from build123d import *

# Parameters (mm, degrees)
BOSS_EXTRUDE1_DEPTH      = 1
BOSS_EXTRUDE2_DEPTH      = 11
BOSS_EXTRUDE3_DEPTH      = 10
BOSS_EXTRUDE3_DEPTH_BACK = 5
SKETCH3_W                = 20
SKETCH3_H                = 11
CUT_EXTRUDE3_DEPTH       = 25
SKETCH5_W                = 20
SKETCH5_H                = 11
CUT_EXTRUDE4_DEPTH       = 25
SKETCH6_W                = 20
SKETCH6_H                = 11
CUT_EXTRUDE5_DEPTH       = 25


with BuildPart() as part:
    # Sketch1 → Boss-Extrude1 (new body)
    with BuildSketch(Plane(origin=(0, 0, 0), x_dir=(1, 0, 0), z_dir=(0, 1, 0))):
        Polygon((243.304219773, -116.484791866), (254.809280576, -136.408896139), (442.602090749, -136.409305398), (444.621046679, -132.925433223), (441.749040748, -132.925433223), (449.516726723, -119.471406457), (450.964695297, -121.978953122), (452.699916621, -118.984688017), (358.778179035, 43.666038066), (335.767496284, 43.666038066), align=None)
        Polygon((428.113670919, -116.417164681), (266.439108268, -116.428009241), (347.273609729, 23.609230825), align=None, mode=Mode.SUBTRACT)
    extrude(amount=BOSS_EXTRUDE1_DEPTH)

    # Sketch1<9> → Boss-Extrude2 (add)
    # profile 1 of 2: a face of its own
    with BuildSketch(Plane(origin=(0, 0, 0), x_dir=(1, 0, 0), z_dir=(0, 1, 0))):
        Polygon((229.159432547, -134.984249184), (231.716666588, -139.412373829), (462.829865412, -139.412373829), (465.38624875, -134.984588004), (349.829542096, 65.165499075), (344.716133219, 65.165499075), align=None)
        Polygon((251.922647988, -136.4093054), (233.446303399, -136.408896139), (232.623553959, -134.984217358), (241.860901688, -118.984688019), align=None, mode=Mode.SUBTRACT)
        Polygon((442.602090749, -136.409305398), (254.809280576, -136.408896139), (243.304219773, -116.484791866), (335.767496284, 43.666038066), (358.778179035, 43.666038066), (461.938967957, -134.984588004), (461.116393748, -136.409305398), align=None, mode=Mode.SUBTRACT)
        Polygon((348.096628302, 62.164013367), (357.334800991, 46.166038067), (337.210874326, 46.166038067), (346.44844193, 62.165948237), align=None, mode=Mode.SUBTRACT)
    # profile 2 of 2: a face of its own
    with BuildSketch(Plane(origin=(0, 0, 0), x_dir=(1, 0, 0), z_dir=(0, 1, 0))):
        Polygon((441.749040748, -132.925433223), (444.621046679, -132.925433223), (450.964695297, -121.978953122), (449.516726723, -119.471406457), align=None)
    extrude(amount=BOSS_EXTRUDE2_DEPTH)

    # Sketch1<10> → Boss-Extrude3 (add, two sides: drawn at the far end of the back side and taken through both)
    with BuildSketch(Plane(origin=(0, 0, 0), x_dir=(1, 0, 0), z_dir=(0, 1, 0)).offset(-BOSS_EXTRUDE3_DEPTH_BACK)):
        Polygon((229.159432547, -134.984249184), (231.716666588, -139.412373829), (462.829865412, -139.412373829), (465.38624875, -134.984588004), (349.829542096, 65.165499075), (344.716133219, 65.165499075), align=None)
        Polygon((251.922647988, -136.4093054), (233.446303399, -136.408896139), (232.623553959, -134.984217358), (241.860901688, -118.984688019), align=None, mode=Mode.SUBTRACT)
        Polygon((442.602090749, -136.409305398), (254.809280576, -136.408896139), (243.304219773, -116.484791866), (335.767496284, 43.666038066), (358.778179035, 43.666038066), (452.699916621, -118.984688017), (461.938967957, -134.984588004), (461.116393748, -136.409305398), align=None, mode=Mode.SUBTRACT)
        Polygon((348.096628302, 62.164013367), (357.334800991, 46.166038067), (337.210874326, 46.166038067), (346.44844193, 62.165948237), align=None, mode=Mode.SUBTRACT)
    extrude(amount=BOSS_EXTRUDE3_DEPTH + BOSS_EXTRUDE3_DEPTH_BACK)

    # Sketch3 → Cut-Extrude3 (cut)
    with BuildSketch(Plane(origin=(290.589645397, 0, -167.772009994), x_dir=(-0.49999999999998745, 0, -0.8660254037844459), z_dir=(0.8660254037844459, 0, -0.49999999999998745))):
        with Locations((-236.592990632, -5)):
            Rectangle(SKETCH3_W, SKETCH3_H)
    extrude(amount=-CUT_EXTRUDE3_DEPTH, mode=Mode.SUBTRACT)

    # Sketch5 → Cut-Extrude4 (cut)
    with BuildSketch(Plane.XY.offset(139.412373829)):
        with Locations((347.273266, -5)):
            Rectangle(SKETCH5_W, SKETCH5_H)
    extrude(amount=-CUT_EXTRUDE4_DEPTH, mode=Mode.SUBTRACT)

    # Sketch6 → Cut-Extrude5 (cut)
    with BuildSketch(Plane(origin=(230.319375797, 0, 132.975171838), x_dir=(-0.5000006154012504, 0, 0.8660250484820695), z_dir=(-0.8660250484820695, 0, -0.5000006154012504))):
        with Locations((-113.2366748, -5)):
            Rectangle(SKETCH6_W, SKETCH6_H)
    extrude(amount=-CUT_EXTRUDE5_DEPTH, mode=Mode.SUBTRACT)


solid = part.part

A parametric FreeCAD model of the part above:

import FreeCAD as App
import Part
import Sketcher
from FreeCAD import Vector
Q = App.Units.Quantity


def add_polygon(sketch, points):
    """Adds a closed chain of lines whose ends are joined by coincident constraints."""
    first, n = sketch.GeometryCount, len(points)
    for a, b in zip(points, points[1:] + points[:1]):
        sketch.addGeometry(Part.LineSegment(App.Vector(*a, 0), App.Vector(*b, 0)), False)
    for i in range(n):
        sketch.addConstraint(Sketcher.Constraint("Coincident", first + i, 2, first + (i + 1) % n, 1))

doc = App.newDocument("Part")
params = doc.addObject("Spreadsheet::Sheet", "Params")
for row, (alias, value) in enumerate([
    ("pad1_length", "1 mm"),
    ("pad2_length", "11 mm"),
    ("pad3_length", "10 mm"),
    ("pad3_length2", "5 mm"),
    ("sketch4_width", "20 mm"),
    ("sketch4_height", "11 mm"),
    ("pocket1_length", "25 mm"),
    ("sketch5_width", "20 mm"),
    ("sketch5_height", "11 mm"),
    ("pocket2_length", "25 mm"),
    ("sketch6_width", "20 mm"),
    ("sketch6_height", "11 mm"),
    ("pocket3_length", "25 mm"),
], start=1):
    params.set(f"A{row}", alias)
    params.set(f"B{row}", "=" + value)
    params.setAlias(f"B{row}", alias)

body = doc.addObject("PartDesign::Body", "Body")

sketch1 = body.newObject("Sketcher::SketchObject", "Sketch")
sketch1.AttachmentSupport = (doc.getObject("XZ_Plane"), [""])
sketch1.MapMode = "FlatFace"
add_polygon(sketch1, [(243.30422, 116.484792), (254.809281, 136.408896), (442.602091, 136.409305), (444.621047, 132.925433), (441.749041, 132.925433), (449.516727, 119.471406), (450.964695, 121.978953), (452.699917, 118.984688), (358.778179, -43.666038), (335.767496, -43.666038)])
add_polygon(sketch1, [(347.27361, -23.609231), (428.113671, 116.417165), (266.439108, 116.428009)])
sketch1.addConstraint(Sketcher.Constraint("Horizontal", 3))
sketch1.addConstraint(Sketcher.Constraint("Horizontal", 8))
sketch1.addConstraint(Sketcher.Constraint("DistanceY", 4, 2, 1, 2, Q("16.937899 mm")))
sketch1.addConstraint(Sketcher.Constraint("DistanceX", 8, 2, 5, 2, Q("115.197199 mm")))
sketch1.addConstraint(Sketcher.Constraint("DistanceX", 11, 2, 12, 2, Q("80.834501 mm")))
sketch1.addConstraint(Sketcher.Constraint("Distance", 0, Q("23.007311 mm")))
sketch1.addConstraint(Sketcher.Constraint("Distance", 1, Q("187.79281 mm")))
sketch1.addConstraint(Sketcher.Constraint("Distance", 4, Q("15.535372 mm")))
sketch1.addConstraint(Sketcher.Constraint("Distance", 7, Q("187.82053 mm")))
sketch1.addConstraint(Sketcher.Constraint("Distance", 12, Q("161.693059 mm")))
sketch1.addConstraint(Sketcher.Constraint("DistanceX", 3, 2, 3, 1, Q("2.872006 mm")))
sketch1.addConstraint(Sketcher.Constraint("DistanceX", 8, 2, 8, 1, Q("23.010683 mm")))
sketch1.addConstraint(Sketcher.Constraint("DistanceX", -1, 1, 0, 2, Q("254.809281 mm")))
sketch1.addConstraint(Sketcher.Constraint("DistanceX", -1, 1, 3, 2, Q("441.749041 mm")))
sketch1.addConstraint(Sketcher.Constraint("DistanceY", -1, 1, 6, 2, Q("118.984688 mm")))
sketch1.addConstraint(Sketcher.Constraint("DistanceX", -1, 1, 7, 2, Q("358.778179 mm")))
sketch1.addConstraint(Sketcher.Constraint("DistanceY", 7, 2, -1, 1, Q("43.666038 mm")))
sketch1.addConstraint(Sketcher.Constraint("DistanceX", -1, 1, 9, 2, Q("243.30422 mm")))
sketch1.addConstraint(Sketcher.Constraint("DistanceY", -1, 1, 9, 2, Q("116.484792 mm")))
sketch1.addConstraint(Sketcher.Constraint("DistanceX", -1, 1, 10, 2, Q("428.113671 mm")))
sketch1.addConstraint(Sketcher.Constraint("DistanceX", -1, 1, 11, 2, Q("266.439108 mm")))
sketch1.addConstraint(Sketcher.Constraint("DistanceY", -1, 1, 11, 2, Q("116.428009 mm")))
sketch1.addConstraint(Sketcher.Constraint("DistanceY", 0, 2, 1, 2, Q("0.000409 mm")))
sketch1.addConstraint(Sketcher.Constraint("DistanceX", 2, 2, 4, 2, Q("4.89568 mm")))
sketch1.addConstraint(Sketcher.Constraint("DistanceY", 5, 2, 2, 2, Q("10.94648 mm")))
sketch1.addConstraint(Sketcher.Constraint("DistanceY", 10, 2, 3, 2, Q("16.508269 mm")))
pad1 = body.newObject("PartDesign::Pad", "Pad")
pad1.Profile = sketch1
pad1.setExpression("Length", "Params.pad1_length")
pad1.Reversed = True

sketch2 = body.newObject("Sketcher::SketchObject", "Sketch001")
sketch2.AttachmentSupport = (doc.getObject("XZ_Plane"), [""])
sketch2.MapMode = "FlatFace"
add_polygon(sketch2, [(229.159433, 134.984249), (231.716667, 139.412374), (462.829865, 139.412374), (465.386249, 134.984588), (349.829542, -65.165499), (344.716133, -65.165499)])
add_polygon(sketch2, [(241.860902, 118.984688), (251.922648, 136.409305), (233.446303, 136.408896), (232.623554, 134.984217)])
add_polygon(sketch2, [(461.116394, 136.409305), (442.602091, 136.409305), (254.809281, 136.408896), (243.30422, 116.484792), (335.767496, -43.666038), (358.778179, -43.666038), (461.938968, 134.984588)])
add_polygon(sketch2, [(346.448442, -62.165948), (348.096628, -62.164013), (357.334801, -46.166038), (337.210874, -46.166038)])
add_polygon(sketch2, [(441.749041, 132.925433), (444.621047, 132.925433), (450.964695, 121.978953), (449.516727, 119.471406)])
sketch2.addConstraint(Sketcher.Constraint("Horizontal", 1))
sketch2.addConstraint(Sketcher.Constraint("Horizontal", 4))
sketch2.addConstraint(Sketcher.Constraint("Horizontal", 10))
sketch2.addConstraint(Sketcher.Constraint("Horizontal", 14))
sketch2.addConstraint(Sketcher.Constraint("Horizontal", 19))
sketch2.addConstraint(Sketcher.Constraint("Horizontal", 21))
sketch2.addConstraint(Sketcher.Constraint("DistanceY", 18, 2, 14, 2, Q("2.5 mm")))
sketch2.addConstraint(Sketcher.Constraint("DistanceX", 1, 1, 1, 2, Q("231.113199 mm")))
sketch2.addConstraint(Sketcher.Constraint("DistanceX", 4, 2, 4, 1, Q("5.113409 mm")))
sketch2.addConstraint(Sketcher.Constraint("DistanceY", 3, 2, -1, 1, Q("65.165499 mm")))
sketch2.addConstraint(Sketcher.Constraint("DistanceX", -1, 1, 9, 2, Q("241.860902 mm")))
sketch2.addConstraint(Sketcher.Constraint("DistanceX", -1, 1, 18, 2, Q("357.334801 mm")))
sketch2.addConstraint(Sketcher.Constraint("DistanceX", 5, 2, 4, 2, Q("115.556701 mm")))
sketch2.addConstraint(Sketcher.Constraint("DistanceX", 6, 2, 2, 2, Q("213.463601 mm")))
sketch2.addConstraint(Sketcher.Constraint("DistanceX", 7, 2, 9, 2, Q("8.414598 mm")))
sketch2.addConstraint(Sketcher.Constraint("DistanceX", 20, 2, 3, 2, Q("3.3811 mm")))
sketch2.addConstraint(Sketcher.Constraint("DistanceX", 22, 2, 16, 2, Q("10.151698 mm")))
sketch2.addConstraint(Sketcher.Constraint("DistanceY", 23, 2, 10, 2, Q("16.937899 mm")))
sketch2.addConstraint(Sketcher.Constraint("Distance", 11, Q("187.79281 mm")))
sketch2.addConstraint(Sketcher.Constraint("Distance", 12, Q("23.007311 mm")))
sketch2.addConstraint(Sketcher.Constraint("Distance", 16, Q("1.645129 mm")))
sketch2.addConstraint(Sketcher.Constraint("Distance", 18, Q("18.473739 mm")))
sketch2.addConstraint(Sketcher.Constraint("Distance", 22, Q("12.651771 mm")))
sketch2.addConstraint(Sketcher.Constraint("Distance", 24, Q("15.535372 mm")))
sketch2.addConstraint(Sketcher.Constraint("DistanceX", 10, 2, 10, 1, Q("18.514303 mm")))
sketch2.addConstraint(Sketcher.Constraint("DistanceX", 14, 1, 14, 2, Q("23.010683 mm")))
sketch2.addConstraint(Sketcher.Constraint("DistanceX", 19, 2, 19, 1, Q("20.123927 mm")))
sketch2.addConstraint(Sketcher.Constraint("DistanceX", 21, 1, 21, 2, Q("2.872006 mm")))
sketch2.addConstraint(Sketcher.Constraint("DistanceX", -1, 1, 2, 2, Q("465.386249 mm")))
sketch2.addConstraint(Sketcher.Constraint("DistanceY", -1, 1, 2, 2, Q("134.984588 mm")))
sketch2.addConstraint(Sketcher.Constraint("DistanceY", -1, 1, 5, 2, Q("134.984249 mm")))
sketch2.addConstraint(Sketcher.Constraint("DistanceY", -1, 1, 9, 2, Q("118.984688 mm")))
sketch2.addConstraint(Sketcher.Constraint("DistanceX", -1, 1, 10, 2, Q("442.602091 mm")))
sketch2.addConstraint(Sketcher.Constraint("DistanceX", -1, 1, 12, 2, Q("243.30422 mm")))
sketch2.addConstraint(Sketcher.Constraint("DistanceY", -1, 1, 12, 2, Q("116.484792 mm")))
sketch2.addConstraint(Sketcher.Constraint("DistanceY", 13, 2, -1, 1, Q("43.666038 mm")))
sketch2.addConstraint(Sketcher.Constraint("DistanceX", -1, 1, 14, 2, Q("358.778179 mm")))
sketch2.addConstraint(Sketcher.Constraint("DistanceY", -1, 1, 15, 2, Q("134.984588 mm")))
sketch2.addConstraint(Sketcher.Constraint("DistanceX", -1, 1, 17, 2, Q("348.096628 mm")))
sketch2.addConstraint(Sketcher.Constraint("DistanceX", -1, 1, 20, 2, Q("346.448442 mm")))
sketch2.addConstraint(Sketcher.Constraint("DistanceY", 20, 2, -1, 1, Q("62.165948 mm")))
sketch2.addConstraint(Sketcher.Constraint("DistanceX", -1, 1, 24, 2, Q("441.749041 mm")))
sketch2.addConstraint(Sketcher.Constraint("DistanceX", 0, 2, 6, 2, Q("20.205981 mm")))
sketch2.addConstraint(Sketcher.Constraint("DistanceY", 6, 2, 0, 2, Q("3.003068 mm")))
sketch2.addConstraint(Sketcher.Constraint("DistanceY", 7, 2, 6, 2, Q("0.000409 mm")))
sketch2.addConstraint(Sketcher.Constraint("DistanceX", 8, 2, 7, 2, Q("0.822749 mm")))
sketch2.addConstraint(Sketcher.Constraint("DistanceY", 8, 2, 7, 2, Q("1.424679 mm")))
sketch2.addConstraint(Sketcher.Constraint("DistanceY", 9, 2, 8, 2, Q("15.999529 mm")))
sketch2.addConstraint(Sketcher.Constraint("DistanceY", 10, 2, 1, 2, Q("3.003068 mm")))
sketch2.addConstraint(Sketcher.Constraint("DistanceY", 21, 2, 1, 2, Q("6.486941 mm")))
pad2 = body.newObject("PartDesign::Pad", "Pad001")
pad2.Profile = sketch2
pad2.setExpression("Length", "Params.pad2_length")
pad2.Reversed = True

sketch3 = body.newObject("Sketcher::SketchObject", "Sketch002")
sketch3.AttachmentSupport = (doc.getObject("XZ_Plane"), [""])
sketch3.MapMode = "FlatFace"
add_polygon(sketch3, [(229.159433, 134.984249), (231.716667, 139.412374), (462.829865, 139.412374), (465.386249, 134.984588), (349.829542, -65.165499), (344.716133, -65.165499)])
add_polygon(sketch3, [(241.860902, 118.984688), (251.922648, 136.409305), (233.446303, 136.408896), (232.623554, 134.984217)])
add_polygon(sketch3, [(461.116394, 136.409305), (442.602091, 136.409305), (254.809281, 136.408896), (243.30422, 116.484792), (335.767496, -43.666038), (358.778179, -43.666038), (452.699917, 118.984688), (461.938968, 134.984588)])
add_polygon(sketch3, [(346.448442, -62.165948), (348.096628, -62.164013), (357.334801, -46.166038), (337.210874, -46.166038)])
sketch3.addConstraint(Sketcher.Constraint("Horizontal", 1))
sketch3.addConstraint(Sketcher.Constraint("Horizontal", 4))
sketch3.addConstraint(Sketcher.Constraint("Horizontal", 10))
sketch3.addConstraint(Sketcher.Constraint("Horizontal", 14))
sketch3.addConstraint(Sketcher.Constraint("Horizontal", 20))
sketch3.addConstraint(Sketcher.Constraint("DistanceY", 19, 2, 14, 2, Q("2.5 mm")))
sketch3.addConstraint(Sketcher.Constraint("DistanceX", 1, 1, 1, 2, Q("231.113199 mm")))
sketch3.addConstraint(Sketcher.Constraint("DistanceX", 4, 2, 4, 1, Q("5.113409 mm")))
sketch3.addConstraint(Sketcher.Constraint("DistanceY", 3, 2, -1, 1, Q("65.165499 mm")))
sketch3.addConstraint(Sketcher.Constraint("DistanceX", -1, 1, 9, 2, Q("241.860902 mm")))
sketch3.addConstraint(Sketcher.Constraint("DistanceX", -1, 1, 19, 2, Q("357.334801 mm")))
sketch3.addConstraint(Sketcher.Constraint("DistanceX", 5, 2, 4, 2, Q("115.556701 mm")))
sketch3.addConstraint(Sketcher.Constraint("DistanceX", 6, 2, 2, 2, Q("213.463601 mm")))
sketch3.addConstraint(Sketcher.Constraint("DistanceX", 7, 2, 9, 2, Q("8.414598 mm")))
sketch3.addConstraint(Sketcher.Constraint("DistanceY", 15, 2, 2, 2, Q("15.9999 mm")))
sketch3.addConstraint(Sketcher.Constraint("DistanceY", 15, 2, 16, 2, Q("15.9999 mm")))
sketch3.addConstraint(Sketcher.Constraint("DistanceX", 21, 2, 3, 2, Q("3.3811 mm")))
sketch3.addConstraint(Sketcher.Constraint("Distance", 11, Q("187.79281 mm")))
sketch3.addConstraint(Sketcher.Constraint("Distance", 12, Q("23.007311 mm")))
sketch3.addConstraint(Sketcher.Constraint("Distance", 15, Q("187.82053 mm")))
sketch3.addConstraint(Sketcher.Constraint("Distance", 17, Q("1.645129 mm")))
sketch3.addConstraint(Sketcher.Constraint("Distance", 19, Q("18.473739 mm")))
sketch3.addConstraint(Sketcher.Constraint("DistanceX", 10, 2, 10, 1, Q("18.514303 mm")))
sketch3.addConstraint(Sketcher.Constraint("DistanceX", 14, 1, 14, 2, Q("23.010683 mm")))
sketch3.addConstraint(Sketcher.Constraint("DistanceX", 20, 2, 20, 1, Q("20.123927 mm")))
sketch3.addConstraint(Sketcher.Constraint("DistanceX", -1, 1, 2, 2, Q("465.386249 mm")))
sketch3.addConstraint(Sketcher.Constraint("DistanceY", -1, 1, 2, 2, Q("134.984588 mm")))
sketch3.addConstraint(Sketcher.Constraint("DistanceY", -1, 1, 5, 2, Q("134.984249 mm")))
sketch3.addConstraint(Sketcher.Constraint("DistanceY", -1, 1, 9, 2, Q("118.984688 mm")))
sketch3.addConstraint(Sketcher.Constraint("DistanceX", -1, 1, 10, 2, Q("442.602091 mm")))
sketch3.addConstraint(Sketcher.Constraint("DistanceX", -1, 1, 12, 2, Q("243.30422 mm")))
sketch3.addConstraint(Sketcher.Constraint("DistanceY", -1, 1, 12, 2, Q("116.484792 mm")))
sketch3.addConstraint(Sketcher.Constraint("DistanceY", 13, 2, -1, 1, Q("43.666038 mm")))
sketch3.addConstraint(Sketcher.Constraint("DistanceX", -1, 1, 14, 2, Q("358.778179 mm")))
sketch3.addConstraint(Sketcher.Constraint("DistanceX", -1, 1, 18, 2, Q("348.096628 mm")))
sketch3.addConstraint(Sketcher.Constraint("DistanceX", -1, 1, 21, 2, Q("346.448442 mm")))
sketch3.addConstraint(Sketcher.Constraint("DistanceY", 21, 2, -1, 1, Q("62.165948 mm")))
sketch3.addConstraint(Sketcher.Constraint("DistanceX", 0, 2, 6, 2, Q("20.205981 mm")))
sketch3.addConstraint(Sketcher.Constraint("DistanceY", 6, 2, 0, 2, Q("3.003068 mm")))
sketch3.addConstraint(Sketcher.Constraint("DistanceY", 7, 2, 6, 2, Q("0.000409 mm")))
sketch3.addConstraint(Sketcher.Constraint("DistanceX", 8, 2, 7, 2, Q("0.822749 mm")))
sketch3.addConstraint(Sketcher.Constraint("DistanceY", 8, 2, 7, 2, Q("1.424679 mm")))
sketch3.addConstraint(Sketcher.Constraint("DistanceY", 9, 2, 8, 2, Q("15.999529 mm")))
sketch3.addConstraint(Sketcher.Constraint("DistanceY", 10, 2, 1, 2, Q("3.003068 mm")))
pad3 = body.newObject("PartDesign::Pad", "Pad002")
pad3.Profile = sketch3
pad3.Type = "TwoLengths"
pad3.setExpression("Length", "Params.pad3_length")
pad3.setExpression("Length2", "Params.pad3_length2")
pad3.Reversed = True

sketch4 = body.newObject("Sketcher::SketchObject", "Sketch003")
sketch4.Placement = App.Placement(Vector(290.589645, 0, -167.77201), App.Rotation(Vector(-0.5, 0, -0.866025404), Vector(0, 1, 0), Vector(0.866025404, 0, -0.5), "ZXY"))
add_polygon(sketch4, [(-246.592991, 0.5), (-246.592991, -10.5), (-226.592991, -10.5), (-226.592991, 0.5)])
sketch4.addConstraint(Sketcher.Constraint("Vertical", 0))
sketch4.addConstraint(Sketcher.Constraint("Horizontal", 1))
sketch4.addConstraint(Sketcher.Constraint("Vertical", 2))
sketch4.addConstraint(Sketcher.Constraint("Horizontal", 3))
sketch4.addConstraint(Sketcher.Constraint("DistanceX", 1, 1, 1, 2, Q("20 mm")))
sketch4.addConstraint(Sketcher.Constraint("DistanceY", 0, 2, 0, 1, Q("11 mm")))
sketch4.addConstraint(Sketcher.Constraint("DistanceY", 0, 2, -1, 1, Q("10.5 mm")))
sketch4.addConstraint(Sketcher.Constraint("DistanceX", 0, 2, -1, 1, Q("246.592991 mm")))
sketch4.setExpression("Constraints[8]", "Params.sketch4_width")
sketch4.setExpression("Constraints[9]", "Params.sketch4_height")
pocket1 = body.newObject("PartDesign::Pocket", "Pocket")
pocket1.Profile = sketch4
pocket1.setExpression("Length", "Params.pocket1_length")

sketch5 = body.newObject("Sketcher::SketchObject", "Sketch004")
sketch5.AttachmentSupport = (doc.getObject("XY_Plane"), [""])
sketch5.MapMode = "FlatFace"
sketch5.AttachmentOffset = App.Placement(Vector(0, 0, 139.412374), App.Rotation())
add_polygon(sketch5, [(337.273266, 0.5), (337.273266, -10.5), (357.273266, -10.5), (357.273266, 0.5)])
sketch5.addConstraint(Sketcher.Constraint("Vertical", 0))
sketch5.addConstraint(Sketcher.Constraint("Horizontal", 1))
sketch5.addConstraint(Sketcher.Constraint("Vertical", 2))
sketch5.addConstraint(Sketcher.Constraint("Horizontal", 3))
sketch5.addConstraint(Sketcher.Constraint("DistanceX", 1, 1, 1, 2, Q("20 mm")))
sketch5.addConstraint(Sketcher.Constraint("DistanceY", 0, 2, 0, 1, Q("11 mm")))
sketch5.addConstraint(Sketcher.Constraint("DistanceY", 0, 2, -1, 1, Q("10.5 mm")))
sketch5.addConstraint(Sketcher.Constraint("DistanceX", -1, 1, 0, 2, Q("337.273266 mm")))
sketch5.setExpression("Constraints[8]", "Params.sketch5_width")
sketch5.setExpression("Constraints[9]", "Params.sketch5_height")
pocket2 = body.newObject("PartDesign::Pocket", "Pocket001")
pocket2.Profile = sketch5
pocket2.setExpression("Length", "Params.pocket2_length")

sketch6 = body.newObject("Sketcher::SketchObject", "Sketch005")
sketch6.Placement = App.Placement(Vector(230.319376, 0, 132.975172), App.Rotation(Vector(-0.500000615, 0, 0.866025048), Vector(0, 0.999999999, 0), Vector(-0.866025048, 0, -0.500000615), "ZXY"))
add_polygon(sketch6, [(-123.236675, 0.5), (-123.236675, -10.5), (-103.236675, -10.5), (-103.236675, 0.5)])
sketch6.addConstraint(Sketcher.Constraint("Vertical", 0))
sketch6.addConstraint(Sketcher.Constraint("Horizontal", 1))
sketch6.addConstraint(Sketcher.Constraint("Vertical", 2))
sketch6.addConstraint(Sketcher.Constraint("Horizontal", 3))
sketch6.addConstraint(Sketcher.Constraint("DistanceX", 1, 1, 1, 2, Q("20 mm")))
sketch6.addConstraint(Sketcher.Constraint("DistanceY", 0, 2, 0, 1, Q("11 mm")))
sketch6.addConstraint(Sketcher.Constraint("DistanceY", 0, 2, -1, 1, Q("10.5 mm")))
sketch6.addConstraint(Sketcher.Constraint("DistanceX", 0, 2, -1, 1, Q("123.236675 mm")))
sketch6.setExpression("Constraints[8]", "Params.sketch6_width")
sketch6.setExpression("Constraints[9]", "Params.sketch6_height")
pocket3 = body.newObject("PartDesign::Pocket", "Pocket002")
pocket3.Profile = sketch6
pocket3.setExpression("Length", "Params.pocket3_length")

doc.recompute()
